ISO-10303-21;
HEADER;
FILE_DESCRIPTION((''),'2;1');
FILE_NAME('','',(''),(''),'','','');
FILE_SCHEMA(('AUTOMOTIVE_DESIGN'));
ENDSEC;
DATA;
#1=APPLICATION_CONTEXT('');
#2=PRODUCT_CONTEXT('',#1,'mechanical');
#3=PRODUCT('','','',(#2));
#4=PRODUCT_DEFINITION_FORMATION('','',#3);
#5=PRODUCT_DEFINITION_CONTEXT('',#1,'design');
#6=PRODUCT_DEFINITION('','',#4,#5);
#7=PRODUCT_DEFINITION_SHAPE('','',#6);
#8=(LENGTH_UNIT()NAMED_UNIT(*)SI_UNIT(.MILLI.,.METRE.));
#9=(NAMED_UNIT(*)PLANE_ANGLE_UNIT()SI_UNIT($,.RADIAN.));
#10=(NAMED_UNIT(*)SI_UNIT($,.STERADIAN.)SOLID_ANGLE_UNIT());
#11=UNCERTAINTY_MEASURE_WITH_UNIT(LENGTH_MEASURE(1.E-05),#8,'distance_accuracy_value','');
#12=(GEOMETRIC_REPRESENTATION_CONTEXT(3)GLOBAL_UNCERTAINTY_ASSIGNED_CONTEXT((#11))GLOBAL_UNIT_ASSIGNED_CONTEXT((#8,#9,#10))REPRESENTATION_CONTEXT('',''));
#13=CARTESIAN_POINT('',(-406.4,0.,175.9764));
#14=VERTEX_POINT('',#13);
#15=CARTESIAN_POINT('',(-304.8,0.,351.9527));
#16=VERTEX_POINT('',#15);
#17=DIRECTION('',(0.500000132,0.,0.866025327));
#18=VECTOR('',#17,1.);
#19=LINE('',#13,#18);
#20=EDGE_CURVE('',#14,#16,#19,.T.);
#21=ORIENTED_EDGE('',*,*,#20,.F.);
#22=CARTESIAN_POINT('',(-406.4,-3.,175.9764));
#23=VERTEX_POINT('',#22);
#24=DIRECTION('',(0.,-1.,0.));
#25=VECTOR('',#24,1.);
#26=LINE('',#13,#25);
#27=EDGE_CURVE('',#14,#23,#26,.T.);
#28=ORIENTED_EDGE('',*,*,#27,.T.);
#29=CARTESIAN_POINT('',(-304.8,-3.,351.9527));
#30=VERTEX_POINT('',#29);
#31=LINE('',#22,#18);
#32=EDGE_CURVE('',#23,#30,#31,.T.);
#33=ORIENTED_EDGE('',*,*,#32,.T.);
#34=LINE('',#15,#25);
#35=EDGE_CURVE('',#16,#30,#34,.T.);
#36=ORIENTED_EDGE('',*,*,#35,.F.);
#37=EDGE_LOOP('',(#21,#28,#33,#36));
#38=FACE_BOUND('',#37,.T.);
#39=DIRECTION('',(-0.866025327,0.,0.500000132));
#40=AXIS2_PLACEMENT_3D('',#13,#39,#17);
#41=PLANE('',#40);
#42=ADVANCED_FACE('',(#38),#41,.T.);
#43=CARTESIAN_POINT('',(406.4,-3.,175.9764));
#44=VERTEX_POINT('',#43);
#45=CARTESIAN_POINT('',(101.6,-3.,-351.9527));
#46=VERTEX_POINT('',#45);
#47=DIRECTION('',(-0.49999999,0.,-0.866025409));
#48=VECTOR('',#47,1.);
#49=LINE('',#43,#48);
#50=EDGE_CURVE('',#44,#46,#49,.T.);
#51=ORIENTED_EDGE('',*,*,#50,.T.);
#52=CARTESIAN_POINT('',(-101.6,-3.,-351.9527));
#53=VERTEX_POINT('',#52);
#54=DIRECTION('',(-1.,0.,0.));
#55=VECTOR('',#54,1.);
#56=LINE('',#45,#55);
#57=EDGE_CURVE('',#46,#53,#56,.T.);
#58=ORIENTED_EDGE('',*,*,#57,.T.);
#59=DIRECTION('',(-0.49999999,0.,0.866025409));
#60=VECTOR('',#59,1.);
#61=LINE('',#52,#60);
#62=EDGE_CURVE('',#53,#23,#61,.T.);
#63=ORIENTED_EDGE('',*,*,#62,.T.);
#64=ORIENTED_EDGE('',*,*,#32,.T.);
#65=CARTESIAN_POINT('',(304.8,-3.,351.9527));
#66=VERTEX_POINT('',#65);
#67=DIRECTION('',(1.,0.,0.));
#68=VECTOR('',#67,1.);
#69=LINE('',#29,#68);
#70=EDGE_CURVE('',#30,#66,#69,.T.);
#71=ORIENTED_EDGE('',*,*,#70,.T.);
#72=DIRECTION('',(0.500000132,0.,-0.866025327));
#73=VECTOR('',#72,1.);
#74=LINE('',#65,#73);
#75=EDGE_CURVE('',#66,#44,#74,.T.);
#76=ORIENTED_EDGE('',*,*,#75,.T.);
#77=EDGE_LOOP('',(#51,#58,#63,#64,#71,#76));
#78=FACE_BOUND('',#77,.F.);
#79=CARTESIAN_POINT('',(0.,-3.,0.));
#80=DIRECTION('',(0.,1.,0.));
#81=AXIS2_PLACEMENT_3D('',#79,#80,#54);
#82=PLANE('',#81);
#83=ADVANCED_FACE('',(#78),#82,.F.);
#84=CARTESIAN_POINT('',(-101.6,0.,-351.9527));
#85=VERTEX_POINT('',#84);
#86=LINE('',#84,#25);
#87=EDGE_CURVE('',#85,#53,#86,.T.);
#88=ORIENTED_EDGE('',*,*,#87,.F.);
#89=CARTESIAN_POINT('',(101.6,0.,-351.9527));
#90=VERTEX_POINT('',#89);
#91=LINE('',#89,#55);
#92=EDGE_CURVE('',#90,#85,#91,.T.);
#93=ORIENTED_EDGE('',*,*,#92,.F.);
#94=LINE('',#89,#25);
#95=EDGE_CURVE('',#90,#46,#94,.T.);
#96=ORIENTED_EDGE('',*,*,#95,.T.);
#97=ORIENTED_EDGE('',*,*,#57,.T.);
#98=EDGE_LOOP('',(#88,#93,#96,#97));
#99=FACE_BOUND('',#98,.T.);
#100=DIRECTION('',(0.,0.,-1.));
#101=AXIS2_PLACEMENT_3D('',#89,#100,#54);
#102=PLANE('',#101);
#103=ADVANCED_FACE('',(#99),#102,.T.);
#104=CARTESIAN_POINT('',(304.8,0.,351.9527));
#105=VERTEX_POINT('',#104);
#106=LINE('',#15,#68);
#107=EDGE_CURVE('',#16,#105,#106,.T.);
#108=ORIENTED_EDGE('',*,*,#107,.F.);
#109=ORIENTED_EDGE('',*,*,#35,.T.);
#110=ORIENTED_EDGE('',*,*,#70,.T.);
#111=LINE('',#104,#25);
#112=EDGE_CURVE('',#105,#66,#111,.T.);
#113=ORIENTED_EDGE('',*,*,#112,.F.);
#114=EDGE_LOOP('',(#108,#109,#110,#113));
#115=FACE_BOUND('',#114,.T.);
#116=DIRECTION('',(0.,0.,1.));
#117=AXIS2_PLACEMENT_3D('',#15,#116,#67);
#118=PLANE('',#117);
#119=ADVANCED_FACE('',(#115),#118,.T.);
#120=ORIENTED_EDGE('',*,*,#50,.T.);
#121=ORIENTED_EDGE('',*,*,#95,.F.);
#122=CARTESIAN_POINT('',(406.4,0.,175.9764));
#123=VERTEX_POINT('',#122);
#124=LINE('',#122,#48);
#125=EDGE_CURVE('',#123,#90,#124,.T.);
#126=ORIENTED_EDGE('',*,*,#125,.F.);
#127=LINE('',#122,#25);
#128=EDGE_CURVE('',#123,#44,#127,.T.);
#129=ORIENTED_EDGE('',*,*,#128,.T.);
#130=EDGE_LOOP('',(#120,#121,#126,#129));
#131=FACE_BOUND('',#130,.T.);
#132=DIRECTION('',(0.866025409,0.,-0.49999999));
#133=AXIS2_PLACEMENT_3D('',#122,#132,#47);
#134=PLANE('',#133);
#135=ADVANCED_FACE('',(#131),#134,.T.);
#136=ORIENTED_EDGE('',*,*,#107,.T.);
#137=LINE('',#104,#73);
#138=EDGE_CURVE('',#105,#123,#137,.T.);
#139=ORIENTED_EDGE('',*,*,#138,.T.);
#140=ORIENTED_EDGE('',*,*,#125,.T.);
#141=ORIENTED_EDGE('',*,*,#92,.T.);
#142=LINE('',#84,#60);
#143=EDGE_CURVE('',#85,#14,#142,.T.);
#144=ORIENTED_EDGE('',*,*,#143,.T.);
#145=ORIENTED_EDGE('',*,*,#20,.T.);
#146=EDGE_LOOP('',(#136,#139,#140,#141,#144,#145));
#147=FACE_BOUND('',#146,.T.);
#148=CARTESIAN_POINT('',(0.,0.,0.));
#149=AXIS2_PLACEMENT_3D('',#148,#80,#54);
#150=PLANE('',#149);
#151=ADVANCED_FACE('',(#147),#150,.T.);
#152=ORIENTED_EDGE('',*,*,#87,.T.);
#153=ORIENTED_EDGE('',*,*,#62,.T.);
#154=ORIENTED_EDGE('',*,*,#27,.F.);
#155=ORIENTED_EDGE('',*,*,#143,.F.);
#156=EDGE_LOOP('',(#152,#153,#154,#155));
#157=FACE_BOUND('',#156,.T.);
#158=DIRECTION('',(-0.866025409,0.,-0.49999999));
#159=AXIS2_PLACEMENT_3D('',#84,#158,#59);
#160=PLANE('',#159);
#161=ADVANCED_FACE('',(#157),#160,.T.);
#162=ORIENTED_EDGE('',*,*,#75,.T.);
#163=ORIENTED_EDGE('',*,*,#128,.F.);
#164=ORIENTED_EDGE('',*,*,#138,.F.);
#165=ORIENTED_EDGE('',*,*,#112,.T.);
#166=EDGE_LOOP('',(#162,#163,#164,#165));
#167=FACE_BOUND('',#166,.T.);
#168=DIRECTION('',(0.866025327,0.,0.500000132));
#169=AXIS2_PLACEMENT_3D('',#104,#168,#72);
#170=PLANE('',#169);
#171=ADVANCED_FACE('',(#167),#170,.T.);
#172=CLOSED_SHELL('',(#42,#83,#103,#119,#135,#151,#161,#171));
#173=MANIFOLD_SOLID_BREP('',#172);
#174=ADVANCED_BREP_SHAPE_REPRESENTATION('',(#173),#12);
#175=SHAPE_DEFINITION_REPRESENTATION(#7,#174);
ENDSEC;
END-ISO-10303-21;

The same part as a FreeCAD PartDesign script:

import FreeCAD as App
import Part
import Sketcher
from FreeCAD import Vector
Q = App.Units.Quantity


def add_polygon(sketch, points):
    """Adds a closed chain of lines whose ends are joined by coincident constraints."""
    first, n = sketch.GeometryCount, len(points)
    for a, b in zip(points, points[1:] + points[:1]):
        sketch.addGeometry(Part.LineSegment(App.Vector(*a, 0), App.Vector(*b, 0)), False)
    for i in range(n):
        sketch.addConstraint(Sketcher.Constraint("Coincident", first + i, 2, first + (i + 1) % n, 1))

doc = App.newDocument("Part")
body = doc.addObject("PartDesign::Body", "Body")

# Sketch on XZ plane
sketch1 = body.newObject("Sketcher::SketchObject", "Sketch")
sketch1.AttachmentSupport = (doc.getObject("XZ_Plane"), [""])
sketch1.MapMode = "FlatFace"
add_polygon(sketch1, [(-406.4, 175.9764), (-304.8, 351.9527), (304.8, 351.9527), (406.4, 175.9764), (101.6, -351.9527), (-101.6, -351.9527)])  # lines 0-5
sketch1.addConstraint([
    Sketcher.Constraint("Horizontal", 1),
    Sketcher.Constraint("Horizontal", 4),
    Sketcher.Constraint("Symmetric", 2, 2, 5, 2, -2),
    Sketcher.Constraint("Parallel", 0, 3),
    Sketcher.Constraint("Parallel", 2, 5),
    Sketcher.Constraint("Equal", 0, 2),
    Sketcher.Constraint("DistanceX", 1, 1, 1, 2, Q("24 in")),
    Sketcher.Constraint("DistanceX", 4, 2, 4, 1, Q("8 in")),
    Sketcher.Constraint("Distance", 0, Q("8 in")),
    Sketcher.Constraint("Distance", 3, Q("24 in")),
    Sketcher.Constraint("DistanceY", -1, 1, 0, 2, Q("13.8564 in")),
])
pad1 = body.newObject("PartDesign::Pad", "Pad")
pad1.Profile = sketch1
pad1.Length = Q("0.1181102 in")

doc.recompute()
